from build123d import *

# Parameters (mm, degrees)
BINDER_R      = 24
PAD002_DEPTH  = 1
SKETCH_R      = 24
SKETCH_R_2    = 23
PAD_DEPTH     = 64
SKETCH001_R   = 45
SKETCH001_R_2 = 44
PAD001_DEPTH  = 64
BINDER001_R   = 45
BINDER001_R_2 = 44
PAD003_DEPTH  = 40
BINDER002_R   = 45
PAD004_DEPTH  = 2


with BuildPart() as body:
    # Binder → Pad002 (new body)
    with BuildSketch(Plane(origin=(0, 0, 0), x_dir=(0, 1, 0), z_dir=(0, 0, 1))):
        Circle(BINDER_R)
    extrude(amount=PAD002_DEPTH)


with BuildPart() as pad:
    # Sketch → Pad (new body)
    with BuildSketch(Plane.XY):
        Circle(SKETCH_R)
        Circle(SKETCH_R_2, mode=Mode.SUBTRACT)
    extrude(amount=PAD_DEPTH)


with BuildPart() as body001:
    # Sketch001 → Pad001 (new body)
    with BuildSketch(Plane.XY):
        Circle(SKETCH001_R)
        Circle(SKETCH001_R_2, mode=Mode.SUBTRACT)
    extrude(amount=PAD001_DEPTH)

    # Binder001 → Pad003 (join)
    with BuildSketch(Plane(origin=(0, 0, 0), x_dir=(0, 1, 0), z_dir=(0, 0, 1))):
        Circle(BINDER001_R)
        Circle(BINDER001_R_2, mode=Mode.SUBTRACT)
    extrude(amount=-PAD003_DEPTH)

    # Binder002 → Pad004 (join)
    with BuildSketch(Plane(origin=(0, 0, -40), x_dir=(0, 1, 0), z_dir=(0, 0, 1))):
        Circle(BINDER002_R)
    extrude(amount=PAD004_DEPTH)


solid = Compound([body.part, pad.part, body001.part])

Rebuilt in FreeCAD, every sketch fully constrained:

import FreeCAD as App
import Part
import Sketcher

V = App.Vector

doc = App.newDocument("Part")
body = doc.addObject("PartDesign::Body", "Body")

sketch1 = body.newObject("Sketcher::SketchObject", "Sketch")
sketch1.AttachmentSupport = (doc.getObject("XY_Plane"), [""])
sketch1.MapMode = "FlatFace"
sketch1.addGeometry(Part.Circle(V(0, 0, 0), V(0, 0, 1), 24), False)
sketch1.addConstraint([
    Sketcher.Constraint("Coincident", 0, 3, -1, 1),
    Sketcher.Constraint("Diameter", 0, 48.0),
])
pad1 = body.newObject("PartDesign::Pad", "Pad")
pad1.Profile = sketch1
pad1.Length = 1
body2 = doc.addObject("PartDesign::Body", "Body001")

sketch2 = body2.newObject("Sketcher::SketchObject", "Sketch001")
sketch2.AttachmentSupport = (doc.getObject("XY_Plane001"), [""])
sketch2.MapMode = "FlatFace"
sketch2.addGeometry([
    Part.Circle(V(0, 0, 0), V(0, 0, 1), 24),
    Part.Circle(V(0, 0, 0), V(0, 0, 1), 23),
], False)
sketch2.addConstraint([
    Sketcher.Constraint("Coincident", 0, 3, -1, 1),
    Sketcher.Constraint("Coincident", 1, 3, -1, 1),
    Sketcher.Constraint("Diameter", 0, 48.0),
    Sketcher.Constraint("Diameter", 1, 46.0),
])
pad2 = body2.newObject("PartDesign::Pad", "Pad001")
pad2.Profile = sketch2
pad2.Length = 64
body3 = doc.addObject("PartDesign::Body", "Body002")

sketch3 = body3.newObject("Sketcher::SketchObject", "Sketch002")
sketch3.AttachmentSupport = (doc.getObject("XY_Plane002"), [""])
sketch3.MapMode = "FlatFace"
sketch3.addGeometry([
    Part.Circle(V(0, 0, 0), V(0, 0, 1), 45),
    Part.Circle(V(0, 0, 0), V(0, 0, 1), 44),
], False)
sketch3.addConstraint([
    Sketcher.Constraint("Coincident", 0, 3, -1, 1),
    Sketcher.Constraint("Coincident", 1, 3, -1, 1),
    Sketcher.Constraint("Diameter", 0, 90.0),
    Sketcher.Constraint("Diameter", 1, 88.0),
])
pad3 = body3.newObject("PartDesign::Pad", "Pad002")
pad3.Profile = sketch3
pad3.Length = 64

sketch4 = body3.newObject("Sketcher::SketchObject", "Sketch003")
sketch4.AttachmentSupport = (doc.getObject("XY_Plane002"), [""])
sketch4.MapMode = "FlatFace"
sketch4.addGeometry([
    Part.Circle(V(0, 0, 0), V(0, 0, 1), 45),
    Part.Circle(V(0, 0, 0), V(0, 0, 1), 44),
], False)
sketch4.addConstraint([
    Sketcher.Constraint("Coincident", 0, 3, -1, 1),
    Sketcher.Constraint("Coincident", 1, 3, -1, 1),
    Sketcher.Constraint("Diameter", 0, 90.0),
    Sketcher.Constraint("Diameter", 1, 88.0),
])
pad4 = body3.newObject("PartDesign::Pad", "Pad003")
pad4.Profile = sketch4
pad4.Length = 40
pad4.Reversed = True

sketch5 = body3.newObject("Sketcher::SketchObject", "Sketch004")
sketch5.AttachmentSupport = (doc.getObject("XY_Plane002"), [""])
sketch5.MapMode = "FlatFace"
sketch5.AttachmentOffset = App.Placement(V(0, 0, -40), App.Rotation())
sketch5.addGeometry(Part.Circle(V(0, 0, 0), V(0, 0, 1), 45), False)
sketch5.addConstraint([
    Sketcher.Constraint("Coincident", 0, 3, -1, 1),
    Sketcher.Constraint("Diameter", 0, 90.0),
])
pad5 = body3.newObject("PartDesign::Pad", "Pad004")
pad5.Profile = sketch5
pad5.Length = 2

doc.recompute()
